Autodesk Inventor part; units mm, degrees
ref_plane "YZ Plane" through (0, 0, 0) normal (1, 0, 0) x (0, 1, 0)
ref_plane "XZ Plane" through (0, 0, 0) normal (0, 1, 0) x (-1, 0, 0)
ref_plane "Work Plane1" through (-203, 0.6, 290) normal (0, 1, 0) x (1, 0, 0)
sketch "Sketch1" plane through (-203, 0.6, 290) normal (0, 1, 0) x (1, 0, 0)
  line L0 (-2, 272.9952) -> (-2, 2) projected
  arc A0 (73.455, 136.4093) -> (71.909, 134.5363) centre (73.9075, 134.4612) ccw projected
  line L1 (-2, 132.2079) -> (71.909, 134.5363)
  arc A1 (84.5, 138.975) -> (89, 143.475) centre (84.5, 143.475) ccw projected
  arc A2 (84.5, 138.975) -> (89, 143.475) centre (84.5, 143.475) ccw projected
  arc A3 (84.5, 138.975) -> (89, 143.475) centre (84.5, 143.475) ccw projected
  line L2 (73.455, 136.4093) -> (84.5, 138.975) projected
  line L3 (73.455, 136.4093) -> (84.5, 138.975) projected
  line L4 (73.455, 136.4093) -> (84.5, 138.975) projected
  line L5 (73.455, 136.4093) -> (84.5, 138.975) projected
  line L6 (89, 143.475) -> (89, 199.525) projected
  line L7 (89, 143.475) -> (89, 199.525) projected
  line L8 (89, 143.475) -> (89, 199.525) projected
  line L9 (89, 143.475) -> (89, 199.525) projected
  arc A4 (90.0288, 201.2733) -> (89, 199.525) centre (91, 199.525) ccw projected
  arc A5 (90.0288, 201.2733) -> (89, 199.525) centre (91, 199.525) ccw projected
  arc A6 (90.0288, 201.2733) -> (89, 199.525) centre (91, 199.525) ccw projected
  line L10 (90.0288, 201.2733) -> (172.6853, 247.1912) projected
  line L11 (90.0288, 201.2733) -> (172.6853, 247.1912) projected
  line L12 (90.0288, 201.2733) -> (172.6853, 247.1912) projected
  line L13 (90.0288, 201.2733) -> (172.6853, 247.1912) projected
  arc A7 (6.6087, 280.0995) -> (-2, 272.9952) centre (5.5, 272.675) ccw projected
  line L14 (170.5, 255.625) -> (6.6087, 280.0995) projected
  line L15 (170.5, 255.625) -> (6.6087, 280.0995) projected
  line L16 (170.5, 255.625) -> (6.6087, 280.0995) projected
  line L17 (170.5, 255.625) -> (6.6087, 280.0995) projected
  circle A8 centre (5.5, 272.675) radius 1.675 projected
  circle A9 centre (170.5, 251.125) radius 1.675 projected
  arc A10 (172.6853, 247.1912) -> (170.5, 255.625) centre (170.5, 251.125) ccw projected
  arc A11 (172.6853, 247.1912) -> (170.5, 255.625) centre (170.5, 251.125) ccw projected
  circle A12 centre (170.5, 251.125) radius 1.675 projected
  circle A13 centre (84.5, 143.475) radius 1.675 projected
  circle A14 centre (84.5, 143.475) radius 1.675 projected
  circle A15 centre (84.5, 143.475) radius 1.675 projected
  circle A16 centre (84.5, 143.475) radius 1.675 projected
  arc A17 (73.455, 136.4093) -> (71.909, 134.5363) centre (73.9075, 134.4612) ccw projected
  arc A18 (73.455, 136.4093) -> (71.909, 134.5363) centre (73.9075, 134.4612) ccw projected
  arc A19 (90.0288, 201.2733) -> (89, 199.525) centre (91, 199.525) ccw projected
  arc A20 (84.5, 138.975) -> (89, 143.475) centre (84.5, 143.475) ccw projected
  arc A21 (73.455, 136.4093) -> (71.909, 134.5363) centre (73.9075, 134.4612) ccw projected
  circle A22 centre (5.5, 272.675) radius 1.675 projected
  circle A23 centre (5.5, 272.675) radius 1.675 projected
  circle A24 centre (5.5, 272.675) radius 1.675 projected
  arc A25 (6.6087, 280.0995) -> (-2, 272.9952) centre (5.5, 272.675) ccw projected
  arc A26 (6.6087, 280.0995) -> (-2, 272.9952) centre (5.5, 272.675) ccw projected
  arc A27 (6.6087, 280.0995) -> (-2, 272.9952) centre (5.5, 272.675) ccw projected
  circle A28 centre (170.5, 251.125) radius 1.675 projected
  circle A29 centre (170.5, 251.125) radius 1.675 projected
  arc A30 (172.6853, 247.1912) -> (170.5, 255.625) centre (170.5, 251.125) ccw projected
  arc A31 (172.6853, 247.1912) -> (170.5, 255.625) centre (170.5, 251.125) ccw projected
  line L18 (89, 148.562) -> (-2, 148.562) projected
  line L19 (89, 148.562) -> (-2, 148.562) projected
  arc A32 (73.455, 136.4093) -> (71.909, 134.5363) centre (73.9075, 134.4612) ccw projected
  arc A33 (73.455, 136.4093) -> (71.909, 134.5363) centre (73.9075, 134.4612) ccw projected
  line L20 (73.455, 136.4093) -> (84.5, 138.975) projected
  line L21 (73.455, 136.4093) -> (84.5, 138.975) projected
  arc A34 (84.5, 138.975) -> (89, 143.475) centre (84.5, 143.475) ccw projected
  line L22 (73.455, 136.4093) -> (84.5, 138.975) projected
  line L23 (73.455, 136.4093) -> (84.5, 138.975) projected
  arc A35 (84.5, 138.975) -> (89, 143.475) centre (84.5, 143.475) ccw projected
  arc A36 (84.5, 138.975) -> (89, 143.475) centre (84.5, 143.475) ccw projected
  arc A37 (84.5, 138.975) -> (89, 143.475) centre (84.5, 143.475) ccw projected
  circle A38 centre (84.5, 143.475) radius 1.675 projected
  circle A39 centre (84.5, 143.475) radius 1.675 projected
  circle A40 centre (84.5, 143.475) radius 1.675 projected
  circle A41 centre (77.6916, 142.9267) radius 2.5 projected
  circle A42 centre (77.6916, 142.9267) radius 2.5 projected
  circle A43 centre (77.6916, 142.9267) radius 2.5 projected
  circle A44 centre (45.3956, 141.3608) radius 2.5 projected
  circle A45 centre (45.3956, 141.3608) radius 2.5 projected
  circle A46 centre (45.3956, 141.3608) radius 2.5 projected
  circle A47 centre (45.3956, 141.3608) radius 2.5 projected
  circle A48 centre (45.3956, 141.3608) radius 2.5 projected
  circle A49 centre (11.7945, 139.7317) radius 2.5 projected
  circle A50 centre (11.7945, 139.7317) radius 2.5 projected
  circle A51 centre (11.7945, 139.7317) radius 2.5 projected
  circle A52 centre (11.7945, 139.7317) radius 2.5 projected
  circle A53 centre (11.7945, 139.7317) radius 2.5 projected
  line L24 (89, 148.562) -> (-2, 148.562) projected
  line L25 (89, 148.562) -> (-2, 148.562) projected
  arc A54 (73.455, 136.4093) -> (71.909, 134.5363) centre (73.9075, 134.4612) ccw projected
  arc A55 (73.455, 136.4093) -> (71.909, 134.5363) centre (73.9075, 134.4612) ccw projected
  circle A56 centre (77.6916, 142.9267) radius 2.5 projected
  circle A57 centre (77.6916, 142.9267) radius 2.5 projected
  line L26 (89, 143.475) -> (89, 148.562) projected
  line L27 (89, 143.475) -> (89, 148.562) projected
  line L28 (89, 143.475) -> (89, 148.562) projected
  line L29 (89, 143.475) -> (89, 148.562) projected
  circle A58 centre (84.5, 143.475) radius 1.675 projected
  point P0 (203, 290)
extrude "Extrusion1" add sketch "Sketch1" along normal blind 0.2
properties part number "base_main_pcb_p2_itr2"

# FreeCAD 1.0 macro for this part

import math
import FreeCAD as App
import Part
import Sketcher

V = App.Vector

doc = App.newDocument("Part")
body = doc.addObject("PartDesign::Body", "Body")

# Sketch on XZ plane
sketch1 = doc.addObject("Sketcher::SketchObject", "Sketch")
body.addObject(sketch1)
sketch1.AttachmentSupport = (doc.XZ_Plane, [""])
sketch1.MapMode = "FlatFace"
sketch1.AttachmentOffset = App.Placement(V(0, 0, -0.6), App.Rotation())
sketch1.addGeometry([
    Part.ArcOfCircle(Part.Circle(V(-197.5, 17.325, 0), V(0, 0, 1), 7.506825), math.radians(-177.555337), math.radians(-81.506786)),  # 0
    Part.LineSegment(V(-205, 17.0048, 0), V(-205, 157.7921, 0)),  # 1
    Part.LineSegment(V(-205, 157.7921, 0), V(-131.091, 155.4637, 0)),  # 2
    Part.ArcOfCircle(Part.Circle(V(-129.0925, 155.5388, 0), V(0, 0, 1), 1.999962), math.radians(-177.847941), math.radians(-103.076643)),  # 3
    Part.LineSegment(V(-129.545, 153.5907, 0), V(-118.5, 151.025, 0)),  # 4
    Part.ArcOfCircle(Part.Circle(V(-118.5, 146.525, 0), V(0, 0, 1), 4.5), math.radians(0), math.radians(90)),  # 5
    Part.LineSegment(V(-114, 146.525, 0), V(-114, 90.475, 0)),  # 6
    Part.ArcOfCircle(Part.Circle(V(-112, 90.475, 0), V(0, 0, 1), 1.999946), math.radians(180), math.radians(240.947344)),  # 7
    Part.LineSegment(V(-112.9712, 88.7267, 0), V(-30.3147, 42.8088, 0)),  # 8
    Part.ArcOfCircle(Part.Circle(V(-32.5, 38.875, 0), V(0, 0, 1), 4.500035), math.radians(-90), math.radians(60.947004)),  # 9
    Part.LineSegment(V(-32.5, 34.375, 0), V(-196.3913, 9.9005, 0)),  # 10
    Part.Circle(V(-197.5, 17.325, 0), V(0, 0, 1), 1.675),  # 11
    Part.Circle(V(-32.5, 38.875, 0), V(0, 0, 1), 1.675),  # 12
    Part.Circle(V(-118.5, 146.525, 0), V(0, 0, 1), 1.675),  # 13
    Part.Circle(V(-191.2055, 150.2683, 0), V(0, 0, 1), 2.5),  # 14
    Part.Circle(V(-157.6044, 148.6392, 0), V(0, 0, 1), 2.5),  # 15
    Part.Circle(V(-125.3084, 147.0733, 0), V(0, 0, 1), 2.5),  # 16
], False)
sketch1.addConstraint([
    Sketcher.Constraint("Coincident", 0, 1, 1, 1),
    Sketcher.Constraint("Coincident", 1, 2, 2, 1),
    Sketcher.Constraint("Coincident", 2, 2, 3, 1),
    Sketcher.Constraint("Coincident", 3, 2, 4, 1),
    Sketcher.Constraint("Coincident", 4, 2, 5, 2),
    Sketcher.Constraint("Coincident", 5, 1, 6, 1),
    Sketcher.Constraint("Coincident", 6, 2, 7, 1),
    Sketcher.Constraint("Coincident", 7, 2, 8, 1),
    Sketcher.Constraint("Coincident", 8, 2, 9, 2),
    Sketcher.Constraint("Coincident", 9, 1, 10, 1),
    Sketcher.Constraint("Coincident", 10, 2, 0, 2),
    Sketcher.Constraint("Vertical", 1),
    Sketcher.Constraint("Vertical", 6),
    Sketcher.Constraint("Coincident", 11, 3, 0, 3),
    Sketcher.Constraint("Coincident", 12, 3, 9, 3),
    Sketcher.Constraint("Coincident", 13, 3, 5, 3),
    Sketcher.Constraint("Diameter", 14, 5.0),
    Sketcher.Constraint("Diameter", 15, 5.0),
    Sketcher.Constraint("Diameter", 16, 5.0),
    Sketcher.Constraint("Radius", 3, 2.0),
    Sketcher.Constraint("Radius", 7, 2.0),
    Sketcher.Constraint("Radius", 5, 4.5),
    Sketcher.Constraint("Radius", 9, 4.5),
    Sketcher.Constraint("Diameter", 11, 3.35),
    Sketcher.Constraint("Diameter", 12, 3.35),
    Sketcher.Constraint("Diameter", 13, 3.35),
    Sketcher.Constraint("DistanceX", 7, 3, -1, 1, 112.0),
    Sketcher.Constraint("DistanceX", 0, 1, -1, 1, 205.0),
    Sketcher.Constraint("DistanceX", 0, 3, 5, 3, 79.0),
    Sketcher.Constraint("DistanceX", 5, 3, 9, 3, 86.0),
    Sketcher.Constraint("DistanceY", 6, 2, 6, 1, 56.05),
    Sketcher.Constraint("DistanceX", 4, 2, -1, 1, 118.5),
    Sketcher.Constraint("DistanceX", 9, 1, -1, 1, 32.5),
    Sketcher.Constraint("Radius", 0, 7.5068),
    Sketcher.Constraint("DistanceY", 0, 3, 5, 3, 129.2),
    Sketcher.Constraint("DistanceY", 9, 3, 7, 3, 51.6),
    Sketcher.Constraint("DistanceY", 5, 1, 4, 2, 4.5),
    Sketcher.Constraint("DistanceY", 7, 3, 5, 3, 56.05),
    Sketcher.Constraint("DistanceX", 10, 2, 7, 2, 83.42),
    Sketcher.Constraint("Distance", 4, 11.339),
    Sketcher.Constraint("DistanceY", 1, 1, 1, 2, 140.7873),
    Sketcher.Constraint("DistanceY", -1, 1, 0, 3, 17.325),
    Sketcher.Constraint("DistanceX", 2, 2, -1, 1, 131.091),
    Sketcher.Constraint("DistanceX", 3, 2, -1, 1, 129.545),
    Sketcher.Constraint("DistanceX", 14, 3, 3, 3, 62.113),
    Sketcher.Constraint("DistanceX", 15, 3, 3, 3, 28.512),
    Sketcher.Constraint("DistanceY", 15, 3, 14, 3, 1.629),
    Sketcher.Constraint("DistanceX", 3, 3, 16, 3, 3.784),
    Sketcher.Constraint("DistanceY", 16, 3, 15, 3, 1.566),
    Sketcher.Constraint("DistanceY", 15, 3, 1, 2, 9.153),
    Sketcher.Constraint("DistanceY", 2, 2, 3, 3, 0.075),
    Sketcher.Constraint("DistanceY", 8, 2, 7, 2, 45.918),
    Sketcher.Constraint("Distance", 10, 165.7087),
])
pad1 = doc.addObject("PartDesign::Pad", "Pad")
body.addObject(pad1)
pad1.Profile = sketch1
pad1.Length = 0.2
pad1.Reversed = True

doc.recompute()
